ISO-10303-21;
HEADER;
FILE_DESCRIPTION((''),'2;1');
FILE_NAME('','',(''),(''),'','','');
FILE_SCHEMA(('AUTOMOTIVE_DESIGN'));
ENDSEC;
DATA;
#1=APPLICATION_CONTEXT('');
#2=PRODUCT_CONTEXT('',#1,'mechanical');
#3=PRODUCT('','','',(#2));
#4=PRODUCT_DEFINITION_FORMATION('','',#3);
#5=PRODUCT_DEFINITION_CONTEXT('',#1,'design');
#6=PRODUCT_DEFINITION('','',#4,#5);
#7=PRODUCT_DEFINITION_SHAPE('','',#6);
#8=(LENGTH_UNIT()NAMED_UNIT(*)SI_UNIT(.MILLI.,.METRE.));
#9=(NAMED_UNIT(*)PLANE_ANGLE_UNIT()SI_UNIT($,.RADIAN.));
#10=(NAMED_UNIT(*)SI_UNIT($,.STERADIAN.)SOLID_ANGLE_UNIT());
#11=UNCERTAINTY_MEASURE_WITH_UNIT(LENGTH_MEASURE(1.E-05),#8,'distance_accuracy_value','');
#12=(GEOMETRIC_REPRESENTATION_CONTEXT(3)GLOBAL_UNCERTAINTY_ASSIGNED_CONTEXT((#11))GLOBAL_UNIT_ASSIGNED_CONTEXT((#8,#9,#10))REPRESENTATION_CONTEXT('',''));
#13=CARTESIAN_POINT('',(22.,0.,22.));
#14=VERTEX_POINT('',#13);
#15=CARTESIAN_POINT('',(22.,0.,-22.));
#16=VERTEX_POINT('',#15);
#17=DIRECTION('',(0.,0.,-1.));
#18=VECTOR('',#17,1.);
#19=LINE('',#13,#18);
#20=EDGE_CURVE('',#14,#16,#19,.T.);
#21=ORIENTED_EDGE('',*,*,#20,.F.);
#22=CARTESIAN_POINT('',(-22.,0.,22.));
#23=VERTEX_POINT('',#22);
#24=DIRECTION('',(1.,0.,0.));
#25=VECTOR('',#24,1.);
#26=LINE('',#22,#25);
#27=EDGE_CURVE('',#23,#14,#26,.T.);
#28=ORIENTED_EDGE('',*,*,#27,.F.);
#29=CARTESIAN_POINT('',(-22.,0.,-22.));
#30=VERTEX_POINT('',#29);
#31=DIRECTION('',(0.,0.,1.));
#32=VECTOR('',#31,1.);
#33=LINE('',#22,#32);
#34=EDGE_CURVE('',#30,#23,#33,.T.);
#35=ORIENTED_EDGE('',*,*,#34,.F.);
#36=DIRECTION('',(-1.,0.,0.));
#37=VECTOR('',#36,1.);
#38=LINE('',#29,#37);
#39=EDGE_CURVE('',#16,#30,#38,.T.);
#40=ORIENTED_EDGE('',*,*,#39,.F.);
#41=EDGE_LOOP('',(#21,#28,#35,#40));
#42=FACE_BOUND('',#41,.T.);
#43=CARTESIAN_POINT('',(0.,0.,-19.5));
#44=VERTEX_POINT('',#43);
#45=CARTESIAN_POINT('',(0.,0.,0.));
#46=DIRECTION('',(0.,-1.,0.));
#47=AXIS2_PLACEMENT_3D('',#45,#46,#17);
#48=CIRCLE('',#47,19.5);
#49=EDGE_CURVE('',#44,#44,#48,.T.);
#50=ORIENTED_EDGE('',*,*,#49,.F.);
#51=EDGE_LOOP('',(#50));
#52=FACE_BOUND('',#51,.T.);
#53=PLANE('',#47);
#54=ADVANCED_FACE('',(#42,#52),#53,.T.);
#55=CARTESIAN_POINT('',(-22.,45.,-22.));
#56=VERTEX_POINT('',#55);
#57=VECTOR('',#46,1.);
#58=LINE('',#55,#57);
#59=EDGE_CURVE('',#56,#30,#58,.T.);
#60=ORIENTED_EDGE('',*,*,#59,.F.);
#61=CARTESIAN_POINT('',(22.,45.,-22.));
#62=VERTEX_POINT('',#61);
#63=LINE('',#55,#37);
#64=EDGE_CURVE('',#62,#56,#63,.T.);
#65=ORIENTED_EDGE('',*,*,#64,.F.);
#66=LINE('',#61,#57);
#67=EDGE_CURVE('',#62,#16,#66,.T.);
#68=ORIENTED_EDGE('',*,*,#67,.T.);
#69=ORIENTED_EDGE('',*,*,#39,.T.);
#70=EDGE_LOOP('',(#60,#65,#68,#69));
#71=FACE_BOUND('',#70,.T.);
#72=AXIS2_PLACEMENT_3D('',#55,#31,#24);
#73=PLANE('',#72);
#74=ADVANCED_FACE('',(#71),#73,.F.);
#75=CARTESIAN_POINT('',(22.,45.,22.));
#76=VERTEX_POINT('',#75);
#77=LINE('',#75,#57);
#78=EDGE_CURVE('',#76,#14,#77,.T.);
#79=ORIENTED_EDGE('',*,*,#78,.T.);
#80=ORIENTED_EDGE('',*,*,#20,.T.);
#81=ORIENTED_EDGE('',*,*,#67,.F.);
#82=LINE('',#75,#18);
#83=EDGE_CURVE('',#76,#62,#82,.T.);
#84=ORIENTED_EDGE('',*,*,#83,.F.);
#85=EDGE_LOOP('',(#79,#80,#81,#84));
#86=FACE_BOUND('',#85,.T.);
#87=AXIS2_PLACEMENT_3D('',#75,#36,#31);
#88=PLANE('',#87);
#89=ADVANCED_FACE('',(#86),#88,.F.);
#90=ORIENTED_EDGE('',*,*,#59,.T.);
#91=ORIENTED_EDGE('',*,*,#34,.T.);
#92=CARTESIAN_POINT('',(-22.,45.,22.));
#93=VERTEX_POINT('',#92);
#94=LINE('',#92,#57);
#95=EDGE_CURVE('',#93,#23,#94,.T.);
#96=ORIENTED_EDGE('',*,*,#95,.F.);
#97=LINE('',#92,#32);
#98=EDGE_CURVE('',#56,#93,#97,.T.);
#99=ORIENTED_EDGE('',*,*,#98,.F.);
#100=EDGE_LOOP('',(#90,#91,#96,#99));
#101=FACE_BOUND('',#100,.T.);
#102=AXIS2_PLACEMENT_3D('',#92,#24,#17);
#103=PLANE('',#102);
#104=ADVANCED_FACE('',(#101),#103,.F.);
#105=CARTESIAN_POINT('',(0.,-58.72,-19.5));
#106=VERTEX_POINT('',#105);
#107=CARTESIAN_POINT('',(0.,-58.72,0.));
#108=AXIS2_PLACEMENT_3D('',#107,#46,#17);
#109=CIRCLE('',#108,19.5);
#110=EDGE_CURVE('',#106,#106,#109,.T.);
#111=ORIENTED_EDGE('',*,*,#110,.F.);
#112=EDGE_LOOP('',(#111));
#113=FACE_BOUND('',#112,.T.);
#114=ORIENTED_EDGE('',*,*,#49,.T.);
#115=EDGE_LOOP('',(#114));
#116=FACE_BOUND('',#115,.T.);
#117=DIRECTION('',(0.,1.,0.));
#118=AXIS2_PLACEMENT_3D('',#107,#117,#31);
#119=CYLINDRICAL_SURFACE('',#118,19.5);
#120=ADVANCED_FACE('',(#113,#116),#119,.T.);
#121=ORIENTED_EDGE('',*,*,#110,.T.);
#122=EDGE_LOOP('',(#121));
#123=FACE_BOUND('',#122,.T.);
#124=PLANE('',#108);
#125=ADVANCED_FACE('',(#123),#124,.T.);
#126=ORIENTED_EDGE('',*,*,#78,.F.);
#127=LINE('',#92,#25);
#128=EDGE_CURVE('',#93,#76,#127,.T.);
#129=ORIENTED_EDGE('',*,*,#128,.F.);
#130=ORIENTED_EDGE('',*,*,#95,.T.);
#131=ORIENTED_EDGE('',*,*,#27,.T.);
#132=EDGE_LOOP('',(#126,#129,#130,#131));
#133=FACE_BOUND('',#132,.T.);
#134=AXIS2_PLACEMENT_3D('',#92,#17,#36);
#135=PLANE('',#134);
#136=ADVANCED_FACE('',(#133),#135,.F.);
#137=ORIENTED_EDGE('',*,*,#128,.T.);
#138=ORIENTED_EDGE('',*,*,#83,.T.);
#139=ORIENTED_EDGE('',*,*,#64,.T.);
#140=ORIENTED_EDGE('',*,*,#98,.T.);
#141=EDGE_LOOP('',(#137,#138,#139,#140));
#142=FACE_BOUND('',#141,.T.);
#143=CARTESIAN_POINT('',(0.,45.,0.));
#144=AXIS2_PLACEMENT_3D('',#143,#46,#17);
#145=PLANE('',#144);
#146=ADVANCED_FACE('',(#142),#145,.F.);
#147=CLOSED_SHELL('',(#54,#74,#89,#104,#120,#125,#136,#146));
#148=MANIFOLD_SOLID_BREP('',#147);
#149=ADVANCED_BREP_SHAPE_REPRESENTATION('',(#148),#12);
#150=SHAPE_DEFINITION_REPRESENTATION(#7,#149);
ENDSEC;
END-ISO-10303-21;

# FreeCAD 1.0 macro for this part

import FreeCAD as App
import Part
import Sketcher

V = App.Vector


def add_polygon(sketch, points):
    """Adds a closed chain of lines whose ends are joined by coincident constraints."""
    first, n = sketch.GeometryCount, len(points)
    for a, b in zip(points, points[1:] + points[:1]):
        sketch.addGeometry(Part.LineSegment(App.Vector(*a, 0), App.Vector(*b, 0)), False)
    for i in range(n):
        sketch.addConstraint(Sketcher.Constraint("Coincident", first + i, 2, first + (i + 1) % n, 1))

doc = App.newDocument("Part")
body = doc.addObject("PartDesign::Body", "Body")

# Sketch on XZ plane
sketch1 = body.newObject("Sketcher::SketchObject", "Sketch")
sketch1.AttachmentSupport = (doc.getObject("XZ_Plane"), [""])
sketch1.MapMode = "FlatFace"
add_polygon(sketch1, [(-22, -22), (-22, 22), (22, 22), (22, -22)])  # lines 0-3
sketch1.addConstraint([
    Sketcher.Constraint("Vertical", 0),
    Sketcher.Constraint("Horizontal", 1),
    Sketcher.Constraint("Vertical", 2),
    Sketcher.Constraint("Horizontal", 3),
    Sketcher.Constraint("Symmetric", 0, 2, 2, 2, -1, 1),
    Sketcher.Constraint("Equal", 3, 0),
    Sketcher.Constraint("DistanceX", 1, 1, 1, 2, 44.0),
])
pad1 = body.newObject("PartDesign::Pad", "Pad")
pad1.Profile = sketch1
pad1.Length = 45
pad1.Reversed = True

# Sketch on XZ plane
sketch2 = body.newObject("Sketcher::SketchObject", "Sketch001")
sketch2.AttachmentSupport = (doc.getObject("XZ_Plane"), [""])
sketch2.MapMode = "FlatFace"
sketch2.addGeometry(Part.Circle(V(0, 0, 0), V(0, 0, 1), 20), False)
sketch2.addConstraint([
    Sketcher.Constraint("Coincident", 0, 3, -1, 1),
    Sketcher.Constraint("Diameter", 0, 39.0),
])
pad2 = body.newObject("PartDesign::Pad", "Pad001")
pad2.Profile = sketch2
pad2.Length = 58.72

doc.recompute()
